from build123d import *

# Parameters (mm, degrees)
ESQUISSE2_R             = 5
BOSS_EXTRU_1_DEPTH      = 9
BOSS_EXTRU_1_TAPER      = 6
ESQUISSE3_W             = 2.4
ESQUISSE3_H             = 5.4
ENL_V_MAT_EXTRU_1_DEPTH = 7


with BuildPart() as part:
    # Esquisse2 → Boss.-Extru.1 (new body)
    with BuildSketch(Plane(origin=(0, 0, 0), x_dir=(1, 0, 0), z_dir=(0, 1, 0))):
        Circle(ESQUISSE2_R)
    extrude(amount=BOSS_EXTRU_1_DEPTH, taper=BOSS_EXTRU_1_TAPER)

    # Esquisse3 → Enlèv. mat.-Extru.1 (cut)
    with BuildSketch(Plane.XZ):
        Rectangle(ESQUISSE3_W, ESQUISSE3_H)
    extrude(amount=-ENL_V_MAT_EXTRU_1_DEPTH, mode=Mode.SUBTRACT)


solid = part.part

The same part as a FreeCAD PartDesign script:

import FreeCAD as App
import Part
import Sketcher

V = App.Vector
Q = App.Units.Quantity


def add_polygon(sketch, points):
    """Adds a closed chain of lines whose ends are joined by coincident constraints."""
    first, n = sketch.GeometryCount, len(points)
    for a, b in zip(points, points[1:] + points[:1]):
        sketch.addGeometry(Part.LineSegment(App.Vector(*a, 0), App.Vector(*b, 0)), False)
    for i in range(n):
        sketch.addConstraint(Sketcher.Constraint("Coincident", first + i, 2, first + (i + 1) % n, 1))

doc = App.newDocument("Part")
body = doc.addObject("PartDesign::Body", "Body")

# Sketch on XZ plane
sketch1 = body.newObject("Sketcher::SketchObject", "Sketch")
sketch1.AttachmentSupport = (doc.getObject("XZ_Plane"), [""])
sketch1.MapMode = "FlatFace"
sketch1.addGeometry(Part.Circle(V(0, 0, 0), V(0, 0, 1), 5), False)
sketch1.addConstraint([
    Sketcher.Constraint("Coincident", 0, 3, -1, 1),
    Sketcher.Constraint("Diameter", 0, Q("10 mm")),
])
pad1 = body.newObject("PartDesign::Pad", "Pad")
pad1.Profile = sketch1
pad1.Length = 9
pad1.Reversed = True
pad1.TaperAngle = -6

# Sketch on XZ plane
sketch2 = body.newObject("Sketcher::SketchObject", "Sketch001")
sketch2.AttachmentSupport = (doc.getObject("XZ_Plane"), [""])
sketch2.MapMode = "FlatFace"
add_polygon(sketch2, [(-1.2, 2.7), (-1.2, -2.7), (1.2, -2.7), (1.2, 2.7)])  # lines 0-3
sketch2.addConstraint([
    Sketcher.Constraint("Vertical", 0),
    Sketcher.Constraint("Horizontal", 1),
    Sketcher.Constraint("Vertical", 2),
    Sketcher.Constraint("Horizontal", 3),
    Sketcher.Constraint("Symmetric", 0, 2, 2, 2, -1, 1),
    Sketcher.Constraint("DistanceX", 1, 1, 1, 2, Q("2.4 mm")),
    Sketcher.Constraint("DistanceY", 0, 2, 0, 1, Q("5.4 mm")),
])
pocket1 = body.newObject("PartDesign::Pocket", "Pocket")
pocket1.Profile = sketch2
pocket1.Length = 7

doc.recompute()
